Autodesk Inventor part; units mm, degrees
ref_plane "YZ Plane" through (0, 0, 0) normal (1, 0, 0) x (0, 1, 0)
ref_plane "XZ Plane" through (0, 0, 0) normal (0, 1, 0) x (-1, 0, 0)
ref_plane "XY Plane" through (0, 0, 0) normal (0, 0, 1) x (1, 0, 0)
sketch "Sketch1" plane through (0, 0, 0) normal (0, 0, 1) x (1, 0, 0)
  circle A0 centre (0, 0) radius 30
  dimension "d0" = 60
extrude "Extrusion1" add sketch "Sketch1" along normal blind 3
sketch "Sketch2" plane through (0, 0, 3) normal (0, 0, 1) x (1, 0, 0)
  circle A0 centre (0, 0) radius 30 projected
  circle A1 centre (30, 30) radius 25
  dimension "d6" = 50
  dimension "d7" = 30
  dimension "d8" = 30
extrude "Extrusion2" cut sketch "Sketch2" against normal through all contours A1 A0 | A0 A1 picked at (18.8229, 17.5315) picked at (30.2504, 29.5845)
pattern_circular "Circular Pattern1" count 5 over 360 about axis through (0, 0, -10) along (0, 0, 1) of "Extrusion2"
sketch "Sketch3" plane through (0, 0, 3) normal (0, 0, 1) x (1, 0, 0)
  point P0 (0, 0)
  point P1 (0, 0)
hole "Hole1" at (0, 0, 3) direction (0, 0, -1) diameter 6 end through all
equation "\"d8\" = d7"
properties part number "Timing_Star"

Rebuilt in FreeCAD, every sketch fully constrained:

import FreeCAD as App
import Part
import Sketcher
from FreeCAD import Vector

doc = App.newDocument("Part")
body = doc.addObject("PartDesign::Body", "Body")

# Sketch on XY plane
sketch1 = doc.addObject("Sketcher::SketchObject", "Sketch")
body.addObject(sketch1)
sketch1.AttachmentSupport = (doc.XY_Plane, [""])
sketch1.MapMode = "FlatFace"
sketch1.addGeometry(Part.Circle(Vector(0, 0, 0), Vector(0, 0, 1), 30), False)
sketch1.addConstraint(Sketcher.Constraint("Coincident", 0, 3, -1, 1))
sketch1.addConstraint(Sketcher.Constraint("Diameter", 0, 60.0))
pad1 = doc.addObject("PartDesign::Pad", "Pad")
body.addObject(pad1)
pad1.Profile = sketch1
pad1.Length = 3

# Sketch on XY plane
sketch2 = doc.addObject("Sketcher::SketchObject", "Sketch001")
body.addObject(sketch2)
sketch2.AttachmentSupport = (doc.XY_Plane, [""])
sketch2.MapMode = "FlatFace"
sketch2.AttachmentOffset = App.Placement(Vector(0, 0, 3), App.Rotation())
sketch2.addGeometry(Part.Circle(Vector(30, 30, 0), Vector(0, 0, 1), 25), False)
sketch2.addConstraint(Sketcher.Constraint("Diameter", 0, 50.0))
sketch2.addConstraint(Sketcher.Constraint("DistanceX", -1, 1, 0, 3, 30.0))
sketch2.addConstraint(Sketcher.Constraint("DistanceY", -1, 1, 0, 3, 30.0))
pocket1 = doc.addObject("PartDesign::Pocket", "Pocket")
body.addObject(pocket1)
pocket1.Profile = sketch2
pocket1.Type = "ThroughAll"
doc.recompute()

polarpattern = doc.addObject("PartDesign::PolarPattern", "PolarPattern")
body.addObject(polarpattern)
polarpattern.Originals = [pocket1]
polarpattern.Axis = (doc.Z_Axis, [""])
polarpattern.Angle = 360
polarpattern.Occurrences = 5
body.Tip = polarpattern

# Sketch on XY plane
sketch3 = doc.addObject("Sketcher::SketchObject", "Sketch002")
body.addObject(sketch3)
sketch3.AttachmentSupport = (doc.XY_Plane, [""])
sketch3.MapMode = "FlatFace"
sketch3.AttachmentOffset = App.Placement(Vector(0, 0, 3), App.Rotation())
sketch3.addGeometry(Part.Circle(Vector(0, 0, 0), Vector(0, 0, 1), 3), False)
sketch3.addConstraint(Sketcher.Constraint("Coincident", 0, 3, -1, 1))
sketch3.addConstraint(Sketcher.Constraint("Diameter", 0, 6.0))
doc.recompute()
hole = doc.addObject("PartDesign::Hole", "Hole")
body.addObject(hole)
hole.Profile = sketch3
hole.ThreadType = "None"
hole.Diameter = 6
hole.DepthType = "ThroughAll"

doc.recompute()
